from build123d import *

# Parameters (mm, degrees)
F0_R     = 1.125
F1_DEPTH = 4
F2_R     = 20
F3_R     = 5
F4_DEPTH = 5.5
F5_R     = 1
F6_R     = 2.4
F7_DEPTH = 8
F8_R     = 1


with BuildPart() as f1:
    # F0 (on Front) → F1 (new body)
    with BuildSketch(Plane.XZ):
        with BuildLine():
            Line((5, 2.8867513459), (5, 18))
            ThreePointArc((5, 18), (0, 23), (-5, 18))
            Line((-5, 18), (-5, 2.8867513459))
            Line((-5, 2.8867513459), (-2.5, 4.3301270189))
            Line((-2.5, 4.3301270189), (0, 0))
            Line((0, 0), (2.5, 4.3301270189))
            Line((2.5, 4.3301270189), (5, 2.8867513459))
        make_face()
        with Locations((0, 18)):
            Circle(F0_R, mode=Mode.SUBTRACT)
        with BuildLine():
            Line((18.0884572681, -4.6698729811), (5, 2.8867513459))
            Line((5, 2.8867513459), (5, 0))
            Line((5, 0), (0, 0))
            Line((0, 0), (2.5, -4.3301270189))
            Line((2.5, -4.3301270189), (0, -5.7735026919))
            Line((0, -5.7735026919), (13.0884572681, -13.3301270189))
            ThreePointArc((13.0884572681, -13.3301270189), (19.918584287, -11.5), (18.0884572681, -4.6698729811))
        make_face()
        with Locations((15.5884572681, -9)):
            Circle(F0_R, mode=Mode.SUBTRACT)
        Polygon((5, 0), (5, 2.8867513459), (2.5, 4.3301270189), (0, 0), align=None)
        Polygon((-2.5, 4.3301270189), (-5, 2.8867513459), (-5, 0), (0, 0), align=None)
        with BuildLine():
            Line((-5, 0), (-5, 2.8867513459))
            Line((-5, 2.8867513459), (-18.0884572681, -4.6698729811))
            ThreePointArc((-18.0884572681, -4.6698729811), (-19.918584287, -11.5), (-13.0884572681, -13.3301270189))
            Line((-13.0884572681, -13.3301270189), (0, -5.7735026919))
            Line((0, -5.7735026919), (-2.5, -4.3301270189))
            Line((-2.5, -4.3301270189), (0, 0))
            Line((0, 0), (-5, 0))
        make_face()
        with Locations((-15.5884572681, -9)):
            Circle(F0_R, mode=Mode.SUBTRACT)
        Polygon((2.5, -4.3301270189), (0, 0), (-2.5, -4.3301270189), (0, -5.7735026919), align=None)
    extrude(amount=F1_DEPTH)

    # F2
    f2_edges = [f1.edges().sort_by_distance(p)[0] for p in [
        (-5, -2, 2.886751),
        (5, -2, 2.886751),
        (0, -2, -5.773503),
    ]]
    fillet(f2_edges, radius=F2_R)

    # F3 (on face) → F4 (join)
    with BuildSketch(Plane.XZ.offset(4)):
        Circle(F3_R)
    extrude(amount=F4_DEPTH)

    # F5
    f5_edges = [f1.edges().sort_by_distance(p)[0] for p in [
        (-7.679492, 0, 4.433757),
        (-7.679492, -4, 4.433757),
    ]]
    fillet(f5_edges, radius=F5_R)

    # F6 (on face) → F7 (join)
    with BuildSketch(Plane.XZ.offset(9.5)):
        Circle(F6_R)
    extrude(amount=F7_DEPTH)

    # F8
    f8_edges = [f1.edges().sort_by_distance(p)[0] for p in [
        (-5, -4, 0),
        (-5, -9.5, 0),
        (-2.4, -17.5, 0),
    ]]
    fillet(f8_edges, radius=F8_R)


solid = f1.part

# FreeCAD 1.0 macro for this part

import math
import FreeCAD as App
import Part
import Sketcher
from FreeCAD import Vector
Q = App.Units.Quantity


def edges_at(feature, points):
    """Names of the edges that pass closest to the given points."""
    edges = feature.Shape.Edges
    near = lambda p: min(range(len(edges)), key=lambda i: edges[i].distToShape(Part.Vertex(*p))[0])
    return sorted({f"Edge{near(p) + 1}" for p in points})

doc = App.newDocument("Part")
body = doc.addObject("PartDesign::Body", "Body")

sketch1 = doc.addObject("Sketcher::SketchObject", "Sketch")
body.addObject(sketch1)
sketch1.AttachmentSupport = (doc.XZ_Plane, [""])
sketch1.MapMode = "FlatFace"
sketch1.addGeometry([
    Part.ArcOfCircle(Part.Circle(Vector(-15.6, -9, 0), Vector(0, 0, 1), 5), math.radians(120), math.radians(300)),
    Part.LineSegment(Vector(-13.1, -13.3, 0), Vector(0, -5.8, 0)),
    Part.LineSegment(Vector(0, -5.8, 0), Vector(13.1, -13.3, 0)),
    Part.ArcOfCircle(Part.Circle(Vector(15.6, -9, 0), Vector(0, 0, 1), 5), math.radians(-120), math.radians(60)),
    Part.LineSegment(Vector(18.1, -4.7, 0), Vector(5, 2.9, 0)),
    Part.LineSegment(Vector(5, 2.9, 0), Vector(5, 18, 0)),
    Part.ArcOfCircle(Part.Circle(Vector(0, 18, 0), Vector(0, 0, 1), 5), math.radians(0), math.radians(180)),
    Part.LineSegment(Vector(-5, 18, 0), Vector(-5, 2.9, 0)),
    Part.LineSegment(Vector(-5, 2.9, 0), Vector(-18.1, -4.7, 0)),
    Part.Circle(Vector(-15.6, -9, 0), Vector(0, 0, 1), 1.1),
    Part.Circle(Vector(15.6, -9, 0), Vector(0, 0, 1), 1.1),
    Part.Circle(Vector(0, 18, 0), Vector(0, 0, 1), 1.1),
], False)
sketch1.addConstraint([
    Sketcher.Constraint("Tangent", 0, 2, 1, 1),
    Sketcher.Constraint("Coincident", 1, 2, 2, 1),
    Sketcher.Constraint("Tangent", 2, 2, 3, 1),
    Sketcher.Constraint("Tangent", 3, 2, 4, 1),
    Sketcher.Constraint("Coincident", 4, 2, 5, 1),
    Sketcher.Constraint("Tangent", 5, 2, 6, 1),
    Sketcher.Constraint("Tangent", 6, 2, 7, 1),
    Sketcher.Constraint("Coincident", 7, 2, 8, 1),
    Sketcher.Constraint("Tangent", 8, 2, 0, 1),
    Sketcher.Constraint("Vertical", 5),
    Sketcher.Constraint("Vertical", 7),
    Sketcher.Constraint("Coincident", 9, 3, 0, 3),
    Sketcher.Constraint("Coincident", 10, 3, 3, 3),
    Sketcher.Constraint("Coincident", 11, 3, 6, 3),
    Sketcher.Constraint("Equal", 0, 3),
    Sketcher.Constraint("Equal", 3, 6),
    Sketcher.Constraint("Equal", 9, 10),
    Sketcher.Constraint("Equal", 10, 11),
    Sketcher.Constraint("Symmetric", 0, 3, 3, 3, -2),
    Sketcher.Constraint("Symmetric", 4, 2, 7, 2, -2),
    Sketcher.Constraint("PointOnObject", 1, 2, -2),
    Sketcher.Constraint("Parallel", 2, 4),
    Sketcher.Constraint("Equal", 2, 4),
    Sketcher.Constraint("Radius", 0, Q("5 mm")),
    Sketcher.Constraint("Diameter", 9, Q("2.25 mm")),
    Sketcher.Constraint("DistanceY", 0, 3, -1, 1, Q("9 mm")),
    Sketcher.Constraint("DistanceY", -1, 1, 6, 3, Q("18 mm")),
    Sketcher.Constraint("DistanceY", 5, 1, 5, 2, Q("15.113249 mm")),
])
pad1 = doc.addObject("PartDesign::Pad", "Pad")
body.addObject(pad1)
pad1.Profile = sketch1
pad1.Length = 4
doc.recompute()

fillet = doc.addObject("PartDesign::Fillet", "Fillet")
body.addObject(fillet)
fillet.Base = (pad1, edges_at(pad1, [(-5, -2, 2.887), (5, -2, 2.887), (0, -2, -5.774)]))
fillet.Radius = 20

sketch2 = doc.addObject("Sketcher::SketchObject", "Sketch001")
body.addObject(sketch2)
sketch2.AttachmentSupport = (doc.XZ_Plane, [""])
sketch2.MapMode = "FlatFace"
sketch2.AttachmentOffset = App.Placement(Vector(0, 0, 4), App.Rotation())
sketch2.addGeometry(Part.Circle(Vector(0, 0, 0), Vector(0, 0, 1), 5), False)
sketch2.addConstraint([
    Sketcher.Constraint("Coincident", 0, 3, -1, 1),
    Sketcher.Constraint("Diameter", 0, Q("10 mm")),
])
pad2 = doc.addObject("PartDesign::Pad", "Pad001")
body.addObject(pad2)
pad2.Profile = sketch2
pad2.Length = 5.5
doc.recompute()

fillet2 = doc.addObject("PartDesign::Fillet", "Fillet001")
body.addObject(fillet2)
fillet2.Base = (pad2, edges_at(pad2, [(-7.679, 0, 4.434), (-7.679, -4, 4.434)]))
fillet2.Radius = 1

sketch3 = doc.addObject("Sketcher::SketchObject", "Sketch002")
body.addObject(sketch3)
sketch3.AttachmentSupport = (doc.XZ_Plane, [""])
sketch3.MapMode = "FlatFace"
sketch3.AttachmentOffset = App.Placement(Vector(0, 0, 9.5), App.Rotation())
sketch3.addGeometry(Part.Circle(Vector(0, 0, 0), Vector(0, 0, 1), 2.4), False)
sketch3.addConstraint([
    Sketcher.Constraint("Coincident", 0, 3, -1, 1),
    Sketcher.Constraint("Diameter", 0, Q("4.8 mm")),
])
pad3 = doc.addObject("PartDesign::Pad", "Pad002")
body.addObject(pad3)
pad3.Profile = sketch3
pad3.Length = 8
doc.recompute()

fillet3 = doc.addObject("PartDesign::Fillet", "Fillet002")
body.addObject(fillet3)
fillet3.Base = (pad3, edges_at(pad3, [(-5, -4, 0), (-5, -9.5, 0), (-2.4, -17.5, 0)]))
fillet3.Radius = 1

doc.recompute()
